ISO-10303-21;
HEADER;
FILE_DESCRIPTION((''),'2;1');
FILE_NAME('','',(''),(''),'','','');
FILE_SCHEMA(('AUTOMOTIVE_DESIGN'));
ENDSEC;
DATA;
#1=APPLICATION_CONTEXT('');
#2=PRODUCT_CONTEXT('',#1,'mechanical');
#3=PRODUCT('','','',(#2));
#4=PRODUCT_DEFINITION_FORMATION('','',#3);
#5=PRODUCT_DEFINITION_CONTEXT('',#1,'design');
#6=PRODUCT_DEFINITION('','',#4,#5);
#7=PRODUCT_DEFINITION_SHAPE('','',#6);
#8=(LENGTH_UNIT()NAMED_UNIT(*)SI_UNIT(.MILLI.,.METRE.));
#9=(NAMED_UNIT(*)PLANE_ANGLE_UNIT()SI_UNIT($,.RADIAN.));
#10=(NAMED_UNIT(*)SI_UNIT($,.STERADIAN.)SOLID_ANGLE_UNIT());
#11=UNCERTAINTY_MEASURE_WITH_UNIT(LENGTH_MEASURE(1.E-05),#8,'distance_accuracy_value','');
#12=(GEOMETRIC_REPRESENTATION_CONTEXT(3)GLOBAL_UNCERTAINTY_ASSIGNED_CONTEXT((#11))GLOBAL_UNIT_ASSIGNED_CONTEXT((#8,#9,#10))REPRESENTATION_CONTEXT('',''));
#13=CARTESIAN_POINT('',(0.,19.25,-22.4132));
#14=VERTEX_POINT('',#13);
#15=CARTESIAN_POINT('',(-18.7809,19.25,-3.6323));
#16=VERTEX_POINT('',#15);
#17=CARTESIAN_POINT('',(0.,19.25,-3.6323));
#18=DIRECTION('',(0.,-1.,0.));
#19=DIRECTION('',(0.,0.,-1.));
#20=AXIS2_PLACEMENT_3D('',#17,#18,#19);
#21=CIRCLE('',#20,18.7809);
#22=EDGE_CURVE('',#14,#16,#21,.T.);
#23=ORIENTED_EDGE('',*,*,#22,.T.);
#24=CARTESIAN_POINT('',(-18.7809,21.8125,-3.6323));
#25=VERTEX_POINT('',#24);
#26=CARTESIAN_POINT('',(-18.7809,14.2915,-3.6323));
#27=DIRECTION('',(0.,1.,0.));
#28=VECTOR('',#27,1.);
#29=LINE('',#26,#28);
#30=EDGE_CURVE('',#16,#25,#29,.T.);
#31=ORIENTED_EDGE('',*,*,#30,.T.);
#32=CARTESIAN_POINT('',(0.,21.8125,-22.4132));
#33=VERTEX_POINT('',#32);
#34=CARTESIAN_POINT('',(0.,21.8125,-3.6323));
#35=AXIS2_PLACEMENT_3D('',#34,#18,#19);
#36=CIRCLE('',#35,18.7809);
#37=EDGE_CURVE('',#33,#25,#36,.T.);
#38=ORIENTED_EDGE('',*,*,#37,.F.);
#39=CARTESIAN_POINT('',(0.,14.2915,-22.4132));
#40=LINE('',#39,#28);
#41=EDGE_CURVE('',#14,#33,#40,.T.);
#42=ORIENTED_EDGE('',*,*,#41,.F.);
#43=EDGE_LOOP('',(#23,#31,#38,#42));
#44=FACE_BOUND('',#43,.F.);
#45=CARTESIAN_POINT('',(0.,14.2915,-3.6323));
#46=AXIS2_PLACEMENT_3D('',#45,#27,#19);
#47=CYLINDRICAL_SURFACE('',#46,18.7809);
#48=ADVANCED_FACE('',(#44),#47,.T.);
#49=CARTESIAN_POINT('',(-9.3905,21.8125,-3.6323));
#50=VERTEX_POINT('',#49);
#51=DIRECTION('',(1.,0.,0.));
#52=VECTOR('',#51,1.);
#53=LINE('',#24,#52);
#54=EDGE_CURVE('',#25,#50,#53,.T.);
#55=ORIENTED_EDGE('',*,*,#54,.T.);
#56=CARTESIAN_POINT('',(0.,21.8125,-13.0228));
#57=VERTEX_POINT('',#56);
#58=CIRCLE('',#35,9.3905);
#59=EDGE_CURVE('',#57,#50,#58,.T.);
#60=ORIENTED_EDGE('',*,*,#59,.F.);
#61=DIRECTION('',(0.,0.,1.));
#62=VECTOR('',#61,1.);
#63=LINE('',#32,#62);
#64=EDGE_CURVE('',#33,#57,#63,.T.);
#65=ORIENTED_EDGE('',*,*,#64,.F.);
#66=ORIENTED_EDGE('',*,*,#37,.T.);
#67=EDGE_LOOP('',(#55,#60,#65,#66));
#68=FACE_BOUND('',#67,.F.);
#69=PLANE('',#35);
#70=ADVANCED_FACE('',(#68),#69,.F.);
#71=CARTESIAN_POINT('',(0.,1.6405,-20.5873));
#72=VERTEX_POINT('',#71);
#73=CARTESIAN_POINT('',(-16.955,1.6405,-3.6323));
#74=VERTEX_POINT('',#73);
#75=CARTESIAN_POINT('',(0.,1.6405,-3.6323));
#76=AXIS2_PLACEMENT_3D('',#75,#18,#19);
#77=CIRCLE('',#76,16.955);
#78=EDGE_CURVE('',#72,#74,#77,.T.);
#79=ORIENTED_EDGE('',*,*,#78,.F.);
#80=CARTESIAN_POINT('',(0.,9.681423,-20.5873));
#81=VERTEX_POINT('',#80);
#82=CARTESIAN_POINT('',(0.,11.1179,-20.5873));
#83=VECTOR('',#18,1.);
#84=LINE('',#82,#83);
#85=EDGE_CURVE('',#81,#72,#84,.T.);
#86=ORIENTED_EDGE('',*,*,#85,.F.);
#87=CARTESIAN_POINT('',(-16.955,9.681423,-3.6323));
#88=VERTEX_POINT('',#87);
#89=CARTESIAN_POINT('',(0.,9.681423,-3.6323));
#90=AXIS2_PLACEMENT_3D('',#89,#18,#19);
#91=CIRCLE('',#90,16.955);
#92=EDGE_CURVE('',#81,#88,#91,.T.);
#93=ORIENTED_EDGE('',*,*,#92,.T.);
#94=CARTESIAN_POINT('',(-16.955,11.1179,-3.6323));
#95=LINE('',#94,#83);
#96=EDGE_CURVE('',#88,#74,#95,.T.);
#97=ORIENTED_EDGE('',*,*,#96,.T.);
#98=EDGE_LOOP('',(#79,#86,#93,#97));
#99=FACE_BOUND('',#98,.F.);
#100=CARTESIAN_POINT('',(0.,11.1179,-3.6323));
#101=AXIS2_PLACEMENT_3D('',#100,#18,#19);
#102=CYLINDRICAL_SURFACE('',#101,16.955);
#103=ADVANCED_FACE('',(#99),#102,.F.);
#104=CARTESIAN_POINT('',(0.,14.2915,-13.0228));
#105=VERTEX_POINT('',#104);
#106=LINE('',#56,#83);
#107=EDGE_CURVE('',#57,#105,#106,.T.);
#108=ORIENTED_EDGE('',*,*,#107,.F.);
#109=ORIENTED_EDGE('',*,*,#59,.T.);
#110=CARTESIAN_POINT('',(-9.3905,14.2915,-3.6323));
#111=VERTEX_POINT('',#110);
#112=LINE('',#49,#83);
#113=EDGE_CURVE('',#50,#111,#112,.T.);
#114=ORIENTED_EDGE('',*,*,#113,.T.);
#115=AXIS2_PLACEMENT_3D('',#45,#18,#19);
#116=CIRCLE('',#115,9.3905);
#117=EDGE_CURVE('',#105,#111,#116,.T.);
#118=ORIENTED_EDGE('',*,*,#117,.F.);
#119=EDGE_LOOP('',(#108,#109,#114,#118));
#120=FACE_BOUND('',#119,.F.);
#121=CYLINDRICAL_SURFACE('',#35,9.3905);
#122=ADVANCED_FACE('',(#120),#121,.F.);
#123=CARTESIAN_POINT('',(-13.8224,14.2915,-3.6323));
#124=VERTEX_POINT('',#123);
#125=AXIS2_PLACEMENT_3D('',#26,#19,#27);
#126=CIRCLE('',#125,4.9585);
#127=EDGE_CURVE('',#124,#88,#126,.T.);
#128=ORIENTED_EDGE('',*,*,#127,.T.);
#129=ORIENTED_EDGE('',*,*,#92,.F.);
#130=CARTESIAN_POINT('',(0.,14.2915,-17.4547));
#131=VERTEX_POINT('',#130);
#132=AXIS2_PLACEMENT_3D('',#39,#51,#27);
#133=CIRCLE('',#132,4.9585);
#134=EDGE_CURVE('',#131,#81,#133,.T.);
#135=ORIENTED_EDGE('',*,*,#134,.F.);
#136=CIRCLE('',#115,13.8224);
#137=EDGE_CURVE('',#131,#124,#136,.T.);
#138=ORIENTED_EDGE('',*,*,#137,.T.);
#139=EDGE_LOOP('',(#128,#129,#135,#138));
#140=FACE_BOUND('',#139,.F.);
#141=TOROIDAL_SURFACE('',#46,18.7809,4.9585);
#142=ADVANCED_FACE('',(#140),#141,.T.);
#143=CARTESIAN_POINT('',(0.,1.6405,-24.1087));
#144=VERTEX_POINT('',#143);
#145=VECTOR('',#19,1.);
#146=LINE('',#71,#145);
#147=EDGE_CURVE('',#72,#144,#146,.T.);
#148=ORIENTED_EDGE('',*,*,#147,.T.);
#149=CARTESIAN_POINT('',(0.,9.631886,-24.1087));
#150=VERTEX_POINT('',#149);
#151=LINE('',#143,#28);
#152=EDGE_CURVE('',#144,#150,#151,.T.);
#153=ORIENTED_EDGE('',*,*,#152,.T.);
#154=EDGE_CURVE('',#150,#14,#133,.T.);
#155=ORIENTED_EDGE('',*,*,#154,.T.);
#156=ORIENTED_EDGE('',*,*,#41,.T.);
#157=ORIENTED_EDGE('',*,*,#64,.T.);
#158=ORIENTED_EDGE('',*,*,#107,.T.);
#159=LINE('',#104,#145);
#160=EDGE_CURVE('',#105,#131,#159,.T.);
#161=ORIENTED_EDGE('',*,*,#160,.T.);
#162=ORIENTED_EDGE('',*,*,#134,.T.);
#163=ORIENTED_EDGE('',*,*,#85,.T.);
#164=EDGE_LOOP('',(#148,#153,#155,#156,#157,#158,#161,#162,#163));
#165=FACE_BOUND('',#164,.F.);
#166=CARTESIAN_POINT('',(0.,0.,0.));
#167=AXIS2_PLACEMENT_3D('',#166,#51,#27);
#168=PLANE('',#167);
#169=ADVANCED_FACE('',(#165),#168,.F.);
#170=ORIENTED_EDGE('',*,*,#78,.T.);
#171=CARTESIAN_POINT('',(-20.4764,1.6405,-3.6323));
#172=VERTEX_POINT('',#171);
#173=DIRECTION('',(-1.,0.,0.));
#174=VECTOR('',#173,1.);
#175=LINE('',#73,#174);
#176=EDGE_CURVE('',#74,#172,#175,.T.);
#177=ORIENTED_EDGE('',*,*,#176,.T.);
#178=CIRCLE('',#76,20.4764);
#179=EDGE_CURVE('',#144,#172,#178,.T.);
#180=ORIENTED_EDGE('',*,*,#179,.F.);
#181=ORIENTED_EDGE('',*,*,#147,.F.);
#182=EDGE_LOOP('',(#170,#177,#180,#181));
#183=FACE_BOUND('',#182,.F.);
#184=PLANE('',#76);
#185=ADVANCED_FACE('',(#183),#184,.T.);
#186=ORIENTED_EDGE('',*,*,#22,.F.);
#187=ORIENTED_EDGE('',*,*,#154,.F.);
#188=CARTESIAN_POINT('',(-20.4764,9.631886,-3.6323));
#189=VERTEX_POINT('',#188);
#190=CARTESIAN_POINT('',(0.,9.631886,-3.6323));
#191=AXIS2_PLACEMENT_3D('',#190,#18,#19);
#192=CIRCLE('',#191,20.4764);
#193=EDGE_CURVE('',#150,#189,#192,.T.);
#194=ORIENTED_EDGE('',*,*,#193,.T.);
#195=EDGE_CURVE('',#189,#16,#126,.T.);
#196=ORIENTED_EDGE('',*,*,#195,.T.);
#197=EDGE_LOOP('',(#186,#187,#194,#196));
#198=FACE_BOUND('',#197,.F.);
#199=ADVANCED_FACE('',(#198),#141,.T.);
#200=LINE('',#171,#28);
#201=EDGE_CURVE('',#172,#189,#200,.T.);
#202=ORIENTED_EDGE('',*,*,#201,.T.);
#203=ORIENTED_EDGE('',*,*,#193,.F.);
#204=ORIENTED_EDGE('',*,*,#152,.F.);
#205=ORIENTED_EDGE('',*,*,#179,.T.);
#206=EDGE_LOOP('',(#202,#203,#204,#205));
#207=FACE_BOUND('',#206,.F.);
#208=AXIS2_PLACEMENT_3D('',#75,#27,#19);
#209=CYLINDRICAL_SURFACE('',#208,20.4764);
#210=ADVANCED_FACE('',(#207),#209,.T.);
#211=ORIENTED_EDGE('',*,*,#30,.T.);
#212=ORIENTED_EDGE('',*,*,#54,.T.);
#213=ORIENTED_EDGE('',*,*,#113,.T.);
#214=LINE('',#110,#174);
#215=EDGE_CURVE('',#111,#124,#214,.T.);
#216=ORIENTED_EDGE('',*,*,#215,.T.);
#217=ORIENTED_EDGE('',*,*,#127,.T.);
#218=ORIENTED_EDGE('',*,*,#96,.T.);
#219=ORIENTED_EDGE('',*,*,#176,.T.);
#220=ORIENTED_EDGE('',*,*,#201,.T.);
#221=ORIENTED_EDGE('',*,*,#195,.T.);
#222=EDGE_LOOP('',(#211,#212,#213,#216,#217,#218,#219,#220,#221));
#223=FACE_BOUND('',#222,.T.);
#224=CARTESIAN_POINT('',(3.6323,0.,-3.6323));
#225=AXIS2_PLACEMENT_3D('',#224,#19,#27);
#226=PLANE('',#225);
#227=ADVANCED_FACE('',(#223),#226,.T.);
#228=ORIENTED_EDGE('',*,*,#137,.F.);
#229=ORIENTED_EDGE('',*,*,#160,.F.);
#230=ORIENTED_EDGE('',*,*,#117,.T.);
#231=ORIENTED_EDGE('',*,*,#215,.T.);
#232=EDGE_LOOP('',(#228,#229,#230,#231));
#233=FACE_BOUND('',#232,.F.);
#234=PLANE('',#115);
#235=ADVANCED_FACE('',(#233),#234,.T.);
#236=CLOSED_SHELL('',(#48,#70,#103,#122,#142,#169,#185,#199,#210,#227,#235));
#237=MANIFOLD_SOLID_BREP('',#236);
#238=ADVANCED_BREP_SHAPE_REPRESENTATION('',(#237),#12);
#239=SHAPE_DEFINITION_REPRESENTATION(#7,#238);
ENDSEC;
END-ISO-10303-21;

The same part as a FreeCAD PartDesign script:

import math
import FreeCAD as App
import Part
import Sketcher

V = App.Vector

doc = App.newDocument("Part")
params = doc.addObject("Spreadsheet::Sheet", "Params")
for row, (alias, value) in enumerate([
    ("revolution_angle", "270 deg"),
], start=1):
    params.set(f"A{row}", alias)
    params.set(f"B{row}", "=" + value)
    params.setAlias(f"B{row}", alias)

body = doc.addObject("PartDesign::Body", "Body")

# Sketch on YZ plane
sketch1 = body.newObject("Sketcher::SketchObject", "Sketch")
sketch1.AttachmentSupport = (doc.getObject("YZ_Plane"), [""])
sketch1.MapMode = "FlatFace"
sketch1.addGeometry(Part.LineSegment(V(21.8125, -22.4132, 0), V(21.8125, -13.0228, 0)), False)
sketch1.addGeometry(Part.LineSegment(V(21.8125, -13.0228, 0), V(14.2915, -13.0228, 0)), False)
sketch1.addGeometry(Part.LineSegment(V(14.2915, -13.0228, 0), V(14.2915, -17.4547, 0)), False)
sketch1.addGeometry(Part.ArcOfCircle(Part.Circle(V(14.2915, -22.4132, 0), V(0, 0, 1), 4.9585), math.radians(90), math.radians(158.39311)), False)
sketch1.addGeometry(Part.LineSegment(V(9.681423, -20.5873, 0), V(1.6405, -20.5873, 0)), False)
sketch1.addGeometry(Part.LineSegment(V(1.6405, -20.5873, 0), V(1.6405, -24.1087, 0)), False)
sketch1.addGeometry(Part.LineSegment(V(1.6405, -24.1087, 0), V(9.631886, -24.1087, 0)), False)
sketch1.addGeometry(Part.ArcOfCircle(Part.Circle(V(14.2915, -22.4132, 0), V(0, 0, 1), 4.9585), math.radians(-160.005003), math.radians(0)), False)
sketch1.addGeometry(Part.LineSegment(V(19.25, -22.4132, 0), V(21.8125, -22.4132, 0)), False)
sketch1.addGeometry(Part.LineSegment(V(21.8125, -3.6323, 0), V(1.6405, -3.6323, 0)), True)  # axis
sketch1.addConstraint(Sketcher.Constraint("Coincident", 0, 2, 1, 1))
sketch1.addConstraint(Sketcher.Constraint("Coincident", 1, 2, 2, 1))
sketch1.addConstraint(Sketcher.Constraint("Coincident", 2, 2, 3, 1))
sketch1.addConstraint(Sketcher.Constraint("Coincident", 3, 2, 4, 1))
sketch1.addConstraint(Sketcher.Constraint("Coincident", 4, 2, 5, 1))
sketch1.addConstraint(Sketcher.Constraint("Coincident", 5, 2, 6, 1))
sketch1.addConstraint(Sketcher.Constraint("Coincident", 6, 2, 7, 1))
sketch1.addConstraint(Sketcher.Constraint("Coincident", 7, 2, 8, 1))
sketch1.addConstraint(Sketcher.Constraint("Coincident", 8, 2, 0, 1))
sketch1.addConstraint(Sketcher.Constraint("Vertical", 0))
sketch1.addConstraint(Sketcher.Constraint("Horizontal", 1))
sketch1.addConstraint(Sketcher.Constraint("Vertical", 2))
sketch1.addConstraint(Sketcher.Constraint("Horizontal", 4))
sketch1.addConstraint(Sketcher.Constraint("Vertical", 5))
sketch1.addConstraint(Sketcher.Constraint("Horizontal", 6))
sketch1.addConstraint(Sketcher.Constraint("Horizontal", 8))
sketch1.addConstraint(Sketcher.Constraint("Horizontal", 9))
sketch1.addConstraint(Sketcher.Constraint("Coincident", 7, 3, 3, 3))
sketch1.addConstraint(Sketcher.Constraint("Equal", 3, 7))
sketch1.addConstraint(Sketcher.Constraint("Horizontal", 3, 3, 7, 2))
sketch1.addConstraint(Sketcher.Constraint("Vertical", 7, 3, 1, 2))
sketch1.addConstraint(Sketcher.Constraint("Vertical", 8, 2, 9, 1))
sketch1.addConstraint(Sketcher.Constraint("Vertical", 5, 2, 9, 2))
sketch1.addConstraint(Sketcher.Constraint("Radius", 3, 4.9585))
sketch1.addConstraint(Sketcher.Constraint("DistanceX", 1, 2, 1, 1, 7.521))
sketch1.addConstraint(Sketcher.Constraint("DistanceX", 4, 2, 4, 1, 8.041))
sketch1.addConstraint(Sketcher.Constraint("DistanceX", 9, 2, 9, 1, 20.172))
sketch1.addConstraint(Sketcher.Constraint("DistanceY", 2, 2, 2, 1, 4.432))
sketch1.addConstraint(Sketcher.Constraint("DistanceX", -1, 1, 7, 2, 19.25))
sketch1.addConstraint(Sketcher.Constraint("DistanceX", 6, 1, 6, 2, 7.9914))
sketch1.addConstraint(Sketcher.Constraint("DistanceY", 8, 2, 9, 1, 18.781))
sketch1.addConstraint(Sketcher.Constraint("DistanceY", 3, 3, -1, 1, 22.4132))
revolution = body.newObject("PartDesign::Revolution", "Revolution")
revolution.Profile = sketch1
revolution.ReferenceAxis = (sketch1, ["Axis0"])
revolution.setExpression("Angle", "Params.revolution_angle")

doc.recompute()
